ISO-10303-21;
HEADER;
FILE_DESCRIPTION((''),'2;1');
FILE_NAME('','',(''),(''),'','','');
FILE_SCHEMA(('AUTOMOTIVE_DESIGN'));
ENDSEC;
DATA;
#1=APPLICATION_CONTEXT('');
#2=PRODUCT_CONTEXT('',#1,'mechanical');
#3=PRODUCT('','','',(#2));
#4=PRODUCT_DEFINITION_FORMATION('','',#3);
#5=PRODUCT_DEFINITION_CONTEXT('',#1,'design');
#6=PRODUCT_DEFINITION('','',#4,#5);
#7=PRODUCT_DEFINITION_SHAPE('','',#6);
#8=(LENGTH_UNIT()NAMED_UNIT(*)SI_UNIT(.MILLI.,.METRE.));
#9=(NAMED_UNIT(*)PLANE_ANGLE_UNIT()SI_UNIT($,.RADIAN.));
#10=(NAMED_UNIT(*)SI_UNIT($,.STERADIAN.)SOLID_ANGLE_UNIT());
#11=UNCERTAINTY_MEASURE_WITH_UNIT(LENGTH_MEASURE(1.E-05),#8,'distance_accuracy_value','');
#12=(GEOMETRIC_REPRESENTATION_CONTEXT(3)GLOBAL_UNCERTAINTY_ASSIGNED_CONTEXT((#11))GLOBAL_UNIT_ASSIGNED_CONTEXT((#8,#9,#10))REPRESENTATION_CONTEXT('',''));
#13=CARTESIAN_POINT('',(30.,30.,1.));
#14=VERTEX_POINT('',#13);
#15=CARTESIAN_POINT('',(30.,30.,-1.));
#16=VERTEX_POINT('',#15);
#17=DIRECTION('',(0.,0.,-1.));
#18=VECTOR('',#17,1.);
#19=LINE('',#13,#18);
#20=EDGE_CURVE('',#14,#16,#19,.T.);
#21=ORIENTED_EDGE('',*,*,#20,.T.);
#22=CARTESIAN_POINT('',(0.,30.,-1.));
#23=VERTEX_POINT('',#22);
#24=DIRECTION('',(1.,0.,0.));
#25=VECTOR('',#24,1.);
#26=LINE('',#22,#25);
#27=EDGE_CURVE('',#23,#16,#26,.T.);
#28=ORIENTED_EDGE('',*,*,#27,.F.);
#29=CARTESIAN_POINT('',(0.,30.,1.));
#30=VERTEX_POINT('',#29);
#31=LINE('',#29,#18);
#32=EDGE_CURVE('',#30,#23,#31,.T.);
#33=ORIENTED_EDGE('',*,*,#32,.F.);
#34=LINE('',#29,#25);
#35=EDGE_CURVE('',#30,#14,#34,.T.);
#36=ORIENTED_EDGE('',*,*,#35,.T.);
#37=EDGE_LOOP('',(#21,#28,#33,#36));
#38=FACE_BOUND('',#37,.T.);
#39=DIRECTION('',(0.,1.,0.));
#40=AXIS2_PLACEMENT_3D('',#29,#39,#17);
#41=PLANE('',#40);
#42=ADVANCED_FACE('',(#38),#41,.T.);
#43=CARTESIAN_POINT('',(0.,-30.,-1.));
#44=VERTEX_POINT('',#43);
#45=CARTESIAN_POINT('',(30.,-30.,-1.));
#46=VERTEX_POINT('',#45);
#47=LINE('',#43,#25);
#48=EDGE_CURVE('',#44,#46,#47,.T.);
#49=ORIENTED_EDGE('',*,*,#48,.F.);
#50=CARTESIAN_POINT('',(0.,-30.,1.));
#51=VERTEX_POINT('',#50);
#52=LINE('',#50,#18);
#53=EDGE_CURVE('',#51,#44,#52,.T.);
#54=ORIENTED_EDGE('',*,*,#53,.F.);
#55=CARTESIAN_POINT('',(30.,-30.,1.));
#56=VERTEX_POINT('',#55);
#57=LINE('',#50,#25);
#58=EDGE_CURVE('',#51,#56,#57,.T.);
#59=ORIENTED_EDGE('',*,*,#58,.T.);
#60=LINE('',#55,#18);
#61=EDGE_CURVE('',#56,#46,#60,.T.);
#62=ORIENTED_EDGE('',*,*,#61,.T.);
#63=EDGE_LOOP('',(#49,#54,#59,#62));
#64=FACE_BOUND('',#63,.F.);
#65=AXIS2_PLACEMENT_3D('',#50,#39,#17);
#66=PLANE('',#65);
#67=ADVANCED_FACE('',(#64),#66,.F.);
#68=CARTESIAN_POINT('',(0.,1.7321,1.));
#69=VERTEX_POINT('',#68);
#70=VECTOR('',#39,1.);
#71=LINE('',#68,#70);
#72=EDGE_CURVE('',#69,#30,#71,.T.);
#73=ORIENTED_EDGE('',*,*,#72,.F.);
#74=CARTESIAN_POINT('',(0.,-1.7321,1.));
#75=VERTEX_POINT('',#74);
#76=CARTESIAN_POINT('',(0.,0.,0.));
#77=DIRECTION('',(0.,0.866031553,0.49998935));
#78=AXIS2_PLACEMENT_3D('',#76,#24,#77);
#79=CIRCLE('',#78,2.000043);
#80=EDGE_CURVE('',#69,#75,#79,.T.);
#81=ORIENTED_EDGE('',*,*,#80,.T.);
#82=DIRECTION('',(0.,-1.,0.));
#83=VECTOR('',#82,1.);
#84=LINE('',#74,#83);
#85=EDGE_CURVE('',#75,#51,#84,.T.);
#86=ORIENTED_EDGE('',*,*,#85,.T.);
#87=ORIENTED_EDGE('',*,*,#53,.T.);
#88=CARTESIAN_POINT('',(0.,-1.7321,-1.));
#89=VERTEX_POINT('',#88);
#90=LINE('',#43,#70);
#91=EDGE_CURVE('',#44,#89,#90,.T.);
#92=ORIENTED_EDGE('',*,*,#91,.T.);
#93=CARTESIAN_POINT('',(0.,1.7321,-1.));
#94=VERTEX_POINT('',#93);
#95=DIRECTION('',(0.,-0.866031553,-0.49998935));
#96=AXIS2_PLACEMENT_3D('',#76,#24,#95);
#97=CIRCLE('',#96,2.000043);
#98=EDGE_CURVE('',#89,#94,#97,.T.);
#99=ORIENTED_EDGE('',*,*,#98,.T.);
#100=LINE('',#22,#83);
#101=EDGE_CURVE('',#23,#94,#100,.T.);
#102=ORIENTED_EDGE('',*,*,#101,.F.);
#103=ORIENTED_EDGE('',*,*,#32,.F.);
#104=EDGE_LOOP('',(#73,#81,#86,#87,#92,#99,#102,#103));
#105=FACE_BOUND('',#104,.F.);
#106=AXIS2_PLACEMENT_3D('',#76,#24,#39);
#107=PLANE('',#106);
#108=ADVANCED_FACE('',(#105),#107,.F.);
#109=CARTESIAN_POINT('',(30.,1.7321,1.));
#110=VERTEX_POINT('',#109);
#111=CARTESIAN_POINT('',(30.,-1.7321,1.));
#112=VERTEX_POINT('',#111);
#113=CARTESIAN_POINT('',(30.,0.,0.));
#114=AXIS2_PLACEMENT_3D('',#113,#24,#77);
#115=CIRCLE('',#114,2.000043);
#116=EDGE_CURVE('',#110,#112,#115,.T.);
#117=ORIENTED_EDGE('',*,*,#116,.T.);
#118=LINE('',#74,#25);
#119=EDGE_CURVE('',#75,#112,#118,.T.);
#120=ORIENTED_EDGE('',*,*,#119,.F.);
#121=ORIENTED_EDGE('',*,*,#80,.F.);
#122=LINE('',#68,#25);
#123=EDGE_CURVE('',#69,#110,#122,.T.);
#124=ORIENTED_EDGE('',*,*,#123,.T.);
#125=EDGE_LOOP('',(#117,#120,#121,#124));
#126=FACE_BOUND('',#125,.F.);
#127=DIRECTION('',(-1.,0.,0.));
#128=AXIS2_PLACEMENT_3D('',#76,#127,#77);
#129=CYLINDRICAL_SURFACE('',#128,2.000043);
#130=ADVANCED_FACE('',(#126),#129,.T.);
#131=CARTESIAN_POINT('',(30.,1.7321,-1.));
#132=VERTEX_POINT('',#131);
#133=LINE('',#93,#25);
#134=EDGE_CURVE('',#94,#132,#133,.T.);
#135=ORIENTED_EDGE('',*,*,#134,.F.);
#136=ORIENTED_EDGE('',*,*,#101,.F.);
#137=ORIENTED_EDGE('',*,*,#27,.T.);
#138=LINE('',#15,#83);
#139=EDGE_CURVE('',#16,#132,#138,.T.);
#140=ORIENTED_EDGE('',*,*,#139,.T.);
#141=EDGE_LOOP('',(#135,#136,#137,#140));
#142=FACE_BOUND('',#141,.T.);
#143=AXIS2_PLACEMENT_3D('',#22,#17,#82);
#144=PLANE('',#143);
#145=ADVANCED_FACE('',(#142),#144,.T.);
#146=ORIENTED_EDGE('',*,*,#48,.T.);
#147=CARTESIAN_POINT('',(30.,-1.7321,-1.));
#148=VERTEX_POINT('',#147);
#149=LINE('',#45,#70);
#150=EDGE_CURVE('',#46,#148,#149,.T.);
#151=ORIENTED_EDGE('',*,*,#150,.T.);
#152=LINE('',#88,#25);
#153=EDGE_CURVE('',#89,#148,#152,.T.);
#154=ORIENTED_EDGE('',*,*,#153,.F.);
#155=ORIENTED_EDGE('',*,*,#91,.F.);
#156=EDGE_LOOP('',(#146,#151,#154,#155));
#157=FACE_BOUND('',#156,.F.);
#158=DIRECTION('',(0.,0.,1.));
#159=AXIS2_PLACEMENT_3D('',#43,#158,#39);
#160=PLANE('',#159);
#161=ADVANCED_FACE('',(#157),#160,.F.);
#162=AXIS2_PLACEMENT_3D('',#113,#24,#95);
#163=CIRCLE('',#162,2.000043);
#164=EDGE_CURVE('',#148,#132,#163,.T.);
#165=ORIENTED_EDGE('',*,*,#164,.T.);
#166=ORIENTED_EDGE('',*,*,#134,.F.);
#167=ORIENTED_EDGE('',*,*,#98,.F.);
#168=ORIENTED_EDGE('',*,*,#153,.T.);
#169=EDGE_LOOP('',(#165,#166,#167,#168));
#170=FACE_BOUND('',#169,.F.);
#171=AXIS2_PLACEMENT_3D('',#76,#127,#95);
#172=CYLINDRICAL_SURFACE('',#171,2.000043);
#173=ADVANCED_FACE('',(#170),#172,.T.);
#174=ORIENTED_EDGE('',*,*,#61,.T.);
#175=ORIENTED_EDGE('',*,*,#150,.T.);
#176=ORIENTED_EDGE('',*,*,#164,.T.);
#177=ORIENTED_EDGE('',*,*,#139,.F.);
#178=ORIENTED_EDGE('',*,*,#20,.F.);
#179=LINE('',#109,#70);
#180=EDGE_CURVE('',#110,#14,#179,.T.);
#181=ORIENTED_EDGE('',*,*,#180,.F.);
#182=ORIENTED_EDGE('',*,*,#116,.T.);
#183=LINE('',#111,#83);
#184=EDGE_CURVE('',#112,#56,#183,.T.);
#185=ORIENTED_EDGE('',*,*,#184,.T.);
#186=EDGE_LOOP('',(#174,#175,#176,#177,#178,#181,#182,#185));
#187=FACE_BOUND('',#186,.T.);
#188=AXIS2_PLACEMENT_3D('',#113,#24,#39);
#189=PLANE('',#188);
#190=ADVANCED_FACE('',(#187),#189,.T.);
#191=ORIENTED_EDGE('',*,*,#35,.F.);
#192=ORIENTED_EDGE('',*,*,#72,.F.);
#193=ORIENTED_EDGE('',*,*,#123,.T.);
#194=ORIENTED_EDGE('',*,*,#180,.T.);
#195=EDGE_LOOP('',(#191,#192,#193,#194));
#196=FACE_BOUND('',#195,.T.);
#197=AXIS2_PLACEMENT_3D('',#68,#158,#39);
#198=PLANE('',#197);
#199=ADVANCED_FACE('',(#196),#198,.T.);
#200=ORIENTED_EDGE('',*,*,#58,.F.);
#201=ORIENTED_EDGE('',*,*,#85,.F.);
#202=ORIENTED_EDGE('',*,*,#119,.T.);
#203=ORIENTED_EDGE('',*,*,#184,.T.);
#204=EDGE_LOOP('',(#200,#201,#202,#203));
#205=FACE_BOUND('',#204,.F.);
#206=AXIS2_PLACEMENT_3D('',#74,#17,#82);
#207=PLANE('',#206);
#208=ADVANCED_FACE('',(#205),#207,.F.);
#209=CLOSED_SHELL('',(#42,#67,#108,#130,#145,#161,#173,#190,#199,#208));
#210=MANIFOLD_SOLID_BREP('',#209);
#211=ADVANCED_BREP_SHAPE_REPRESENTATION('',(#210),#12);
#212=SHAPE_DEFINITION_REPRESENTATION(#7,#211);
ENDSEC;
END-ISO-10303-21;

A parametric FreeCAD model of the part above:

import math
import FreeCAD as App
import Part
import Sketcher

V = App.Vector

doc = App.newDocument("Part")
body = doc.addObject("PartDesign::Body", "Body")

# Sketch on YZ plane
sketch1 = body.newObject("Sketcher::SketchObject", "Sketch")
sketch1.AttachmentSupport = (doc.getObject("YZ_Plane"), [""])
sketch1.MapMode = "FlatFace"
sketch1.addGeometry([
    Part.LineSegment(V(30, 1, 0), V(1.7, 1, 0)),  # 0
    Part.ArcOfCircle(Part.Circle(V(0, 0, 0), V(0, 0, 1), 2), math.radians(30), math.radians(150)),  # 1
    Part.LineSegment(V(-1.7, 1, 0), V(-30, 1, 0)),  # 2
    Part.LineSegment(V(-30, 1, 0), V(-30, -1, 0)),  # 3
    Part.LineSegment(V(-30, -1, 0), V(-1.7, -1, 0)),  # 4
    Part.ArcOfCircle(Part.Circle(V(0, 0, 0), V(0, 0, 1), 2), math.radians(-150), math.radians(-30)),  # 5
    Part.LineSegment(V(1.7, -1, 0), V(30, -1, 0)),  # 6
    Part.LineSegment(V(30, -1, 0), V(30, 1, 0)),  # 7
], False)
sketch1.addConstraint([
    Sketcher.Constraint("Coincident", 0, 2, 1, 1),
    Sketcher.Constraint("Coincident", 1, 2, 2, 1),
    Sketcher.Constraint("Coincident", 2, 2, 3, 1),
    Sketcher.Constraint("Coincident", 3, 2, 4, 1),
    Sketcher.Constraint("Coincident", 4, 2, 5, 1),
    Sketcher.Constraint("Coincident", 5, 2, 6, 1),
    Sketcher.Constraint("Coincident", 6, 2, 7, 1),
    Sketcher.Constraint("Coincident", 7, 2, 0, 1),
    Sketcher.Constraint("Horizontal", 0),
    Sketcher.Constraint("Horizontal", 2),
    Sketcher.Constraint("Vertical", 3),
    Sketcher.Constraint("Horizontal", 4),
    Sketcher.Constraint("Horizontal", 6),
    Sketcher.Constraint("Vertical", 7),
    Sketcher.Constraint("Coincident", 1, 3, -1, 1),
    Sketcher.Constraint("Coincident", 5, 3, -1, 1),
    Sketcher.Constraint("Equal", 1, 5),
    Sketcher.Constraint("Symmetric", 2, 2, 6, 2, -1, 1),
    Sketcher.Constraint("Horizontal", 0, 2, 1, 2),
    Sketcher.Constraint("Horizontal", 4, 2, 5, 2),
    Sketcher.Constraint("Radius", 1, 2.0),
    Sketcher.Constraint("DistanceY", 3, 2, 3, 1, 2.0),
    Sketcher.Constraint("DistanceX", 2, 2, -1, 1, 30.0),
])
pad1 = body.newObject("PartDesign::Pad", "Pad")
pad1.Profile = sketch1
pad1.Length = 30

doc.recompute()
